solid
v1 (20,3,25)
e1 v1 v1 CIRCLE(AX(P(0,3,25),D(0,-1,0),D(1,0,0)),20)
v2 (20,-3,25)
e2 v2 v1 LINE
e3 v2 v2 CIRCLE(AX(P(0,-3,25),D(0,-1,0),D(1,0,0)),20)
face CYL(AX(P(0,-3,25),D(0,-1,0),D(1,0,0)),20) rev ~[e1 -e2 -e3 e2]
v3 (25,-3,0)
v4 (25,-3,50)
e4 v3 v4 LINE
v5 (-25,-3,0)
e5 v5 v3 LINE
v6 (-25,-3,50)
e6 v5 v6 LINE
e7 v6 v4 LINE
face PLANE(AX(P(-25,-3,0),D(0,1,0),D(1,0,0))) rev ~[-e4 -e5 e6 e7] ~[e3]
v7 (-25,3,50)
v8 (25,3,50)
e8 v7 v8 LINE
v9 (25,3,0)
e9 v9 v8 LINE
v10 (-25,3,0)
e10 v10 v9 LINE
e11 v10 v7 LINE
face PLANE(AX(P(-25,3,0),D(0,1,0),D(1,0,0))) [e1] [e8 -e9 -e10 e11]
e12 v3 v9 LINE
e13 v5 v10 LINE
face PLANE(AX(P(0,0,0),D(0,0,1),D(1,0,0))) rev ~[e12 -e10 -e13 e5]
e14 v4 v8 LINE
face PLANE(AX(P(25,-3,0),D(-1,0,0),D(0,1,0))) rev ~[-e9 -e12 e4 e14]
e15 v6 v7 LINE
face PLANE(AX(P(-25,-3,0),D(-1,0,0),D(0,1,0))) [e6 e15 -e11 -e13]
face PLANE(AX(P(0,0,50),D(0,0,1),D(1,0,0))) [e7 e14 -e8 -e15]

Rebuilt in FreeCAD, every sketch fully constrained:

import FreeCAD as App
import Part
import Sketcher

V = App.Vector

doc = App.newDocument("Part")
body = doc.addObject("PartDesign::Body", "Body")

sketch1 = body.newObject("Sketcher::SketchObject", "Sketch")
sketch1.AttachmentSupport = (doc.getObject("XY_Plane"), [""])
sketch1.MapMode = "FlatFace"
sketch1.addGeometry(Part.LineSegment(V(-25, 3, 0), V(-25, -3, 0)), False)
sketch1.addGeometry(Part.LineSegment(V(-25, -3, 0), V(25, -3, 0)), False)
sketch1.addGeometry(Part.LineSegment(V(25, -3, 0), V(25, 3, 0)), False)
sketch1.addGeometry(Part.LineSegment(V(25, 3, 0), V(-25, 3, 0)), False)
sketch1.addConstraint(Sketcher.Constraint("Coincident", 0, 2, 1, 1))
sketch1.addConstraint(Sketcher.Constraint("Coincident", 1, 2, 2, 1))
sketch1.addConstraint(Sketcher.Constraint("Coincident", 2, 2, 3, 1))
sketch1.addConstraint(Sketcher.Constraint("Coincident", 3, 2, 0, 1))
sketch1.addConstraint(Sketcher.Constraint("Vertical", 0))
sketch1.addConstraint(Sketcher.Constraint("Horizontal", 1))
sketch1.addConstraint(Sketcher.Constraint("Vertical", 2))
sketch1.addConstraint(Sketcher.Constraint("Horizontal", 3))
sketch1.addConstraint(Sketcher.Constraint("Symmetric", 0, 2, 2, 2, -1, 1))
sketch1.addConstraint(Sketcher.Constraint("DistanceX", 1, 1, 1, 2, 50.0))
sketch1.addConstraint(Sketcher.Constraint("DistanceY", 0, 2, 0, 1, 6.0))
pad1 = body.newObject("PartDesign::Pad", "Pad")
pad1.Profile = sketch1
pad1.Length = 50

sketch2 = body.newObject("Sketcher::SketchObject", "Sketch001")
sketch2.AttachmentSupport = (doc.getObject("XZ_Plane"), [""])
sketch2.MapMode = "FlatFace"
sketch2.AttachmentOffset = App.Placement(V(0, 0, 3), App.Rotation())
sketch2.addGeometry(Part.Circle(V(0, 25, 0), V(0, 0, 1), 20), False)
sketch2.addConstraint(Sketcher.Constraint("PointOnObject", 0, 3, -2))
sketch2.addConstraint(Sketcher.Constraint("Diameter", 0, 40.0))
sketch2.addConstraint(Sketcher.Constraint("DistanceY", -1, 1, 0, 3, 25.0))
pocket1 = body.newObject("PartDesign::Pocket", "Pocket")
pocket1.Profile = sketch2
pocket1.Length = 25

doc.recompute()
